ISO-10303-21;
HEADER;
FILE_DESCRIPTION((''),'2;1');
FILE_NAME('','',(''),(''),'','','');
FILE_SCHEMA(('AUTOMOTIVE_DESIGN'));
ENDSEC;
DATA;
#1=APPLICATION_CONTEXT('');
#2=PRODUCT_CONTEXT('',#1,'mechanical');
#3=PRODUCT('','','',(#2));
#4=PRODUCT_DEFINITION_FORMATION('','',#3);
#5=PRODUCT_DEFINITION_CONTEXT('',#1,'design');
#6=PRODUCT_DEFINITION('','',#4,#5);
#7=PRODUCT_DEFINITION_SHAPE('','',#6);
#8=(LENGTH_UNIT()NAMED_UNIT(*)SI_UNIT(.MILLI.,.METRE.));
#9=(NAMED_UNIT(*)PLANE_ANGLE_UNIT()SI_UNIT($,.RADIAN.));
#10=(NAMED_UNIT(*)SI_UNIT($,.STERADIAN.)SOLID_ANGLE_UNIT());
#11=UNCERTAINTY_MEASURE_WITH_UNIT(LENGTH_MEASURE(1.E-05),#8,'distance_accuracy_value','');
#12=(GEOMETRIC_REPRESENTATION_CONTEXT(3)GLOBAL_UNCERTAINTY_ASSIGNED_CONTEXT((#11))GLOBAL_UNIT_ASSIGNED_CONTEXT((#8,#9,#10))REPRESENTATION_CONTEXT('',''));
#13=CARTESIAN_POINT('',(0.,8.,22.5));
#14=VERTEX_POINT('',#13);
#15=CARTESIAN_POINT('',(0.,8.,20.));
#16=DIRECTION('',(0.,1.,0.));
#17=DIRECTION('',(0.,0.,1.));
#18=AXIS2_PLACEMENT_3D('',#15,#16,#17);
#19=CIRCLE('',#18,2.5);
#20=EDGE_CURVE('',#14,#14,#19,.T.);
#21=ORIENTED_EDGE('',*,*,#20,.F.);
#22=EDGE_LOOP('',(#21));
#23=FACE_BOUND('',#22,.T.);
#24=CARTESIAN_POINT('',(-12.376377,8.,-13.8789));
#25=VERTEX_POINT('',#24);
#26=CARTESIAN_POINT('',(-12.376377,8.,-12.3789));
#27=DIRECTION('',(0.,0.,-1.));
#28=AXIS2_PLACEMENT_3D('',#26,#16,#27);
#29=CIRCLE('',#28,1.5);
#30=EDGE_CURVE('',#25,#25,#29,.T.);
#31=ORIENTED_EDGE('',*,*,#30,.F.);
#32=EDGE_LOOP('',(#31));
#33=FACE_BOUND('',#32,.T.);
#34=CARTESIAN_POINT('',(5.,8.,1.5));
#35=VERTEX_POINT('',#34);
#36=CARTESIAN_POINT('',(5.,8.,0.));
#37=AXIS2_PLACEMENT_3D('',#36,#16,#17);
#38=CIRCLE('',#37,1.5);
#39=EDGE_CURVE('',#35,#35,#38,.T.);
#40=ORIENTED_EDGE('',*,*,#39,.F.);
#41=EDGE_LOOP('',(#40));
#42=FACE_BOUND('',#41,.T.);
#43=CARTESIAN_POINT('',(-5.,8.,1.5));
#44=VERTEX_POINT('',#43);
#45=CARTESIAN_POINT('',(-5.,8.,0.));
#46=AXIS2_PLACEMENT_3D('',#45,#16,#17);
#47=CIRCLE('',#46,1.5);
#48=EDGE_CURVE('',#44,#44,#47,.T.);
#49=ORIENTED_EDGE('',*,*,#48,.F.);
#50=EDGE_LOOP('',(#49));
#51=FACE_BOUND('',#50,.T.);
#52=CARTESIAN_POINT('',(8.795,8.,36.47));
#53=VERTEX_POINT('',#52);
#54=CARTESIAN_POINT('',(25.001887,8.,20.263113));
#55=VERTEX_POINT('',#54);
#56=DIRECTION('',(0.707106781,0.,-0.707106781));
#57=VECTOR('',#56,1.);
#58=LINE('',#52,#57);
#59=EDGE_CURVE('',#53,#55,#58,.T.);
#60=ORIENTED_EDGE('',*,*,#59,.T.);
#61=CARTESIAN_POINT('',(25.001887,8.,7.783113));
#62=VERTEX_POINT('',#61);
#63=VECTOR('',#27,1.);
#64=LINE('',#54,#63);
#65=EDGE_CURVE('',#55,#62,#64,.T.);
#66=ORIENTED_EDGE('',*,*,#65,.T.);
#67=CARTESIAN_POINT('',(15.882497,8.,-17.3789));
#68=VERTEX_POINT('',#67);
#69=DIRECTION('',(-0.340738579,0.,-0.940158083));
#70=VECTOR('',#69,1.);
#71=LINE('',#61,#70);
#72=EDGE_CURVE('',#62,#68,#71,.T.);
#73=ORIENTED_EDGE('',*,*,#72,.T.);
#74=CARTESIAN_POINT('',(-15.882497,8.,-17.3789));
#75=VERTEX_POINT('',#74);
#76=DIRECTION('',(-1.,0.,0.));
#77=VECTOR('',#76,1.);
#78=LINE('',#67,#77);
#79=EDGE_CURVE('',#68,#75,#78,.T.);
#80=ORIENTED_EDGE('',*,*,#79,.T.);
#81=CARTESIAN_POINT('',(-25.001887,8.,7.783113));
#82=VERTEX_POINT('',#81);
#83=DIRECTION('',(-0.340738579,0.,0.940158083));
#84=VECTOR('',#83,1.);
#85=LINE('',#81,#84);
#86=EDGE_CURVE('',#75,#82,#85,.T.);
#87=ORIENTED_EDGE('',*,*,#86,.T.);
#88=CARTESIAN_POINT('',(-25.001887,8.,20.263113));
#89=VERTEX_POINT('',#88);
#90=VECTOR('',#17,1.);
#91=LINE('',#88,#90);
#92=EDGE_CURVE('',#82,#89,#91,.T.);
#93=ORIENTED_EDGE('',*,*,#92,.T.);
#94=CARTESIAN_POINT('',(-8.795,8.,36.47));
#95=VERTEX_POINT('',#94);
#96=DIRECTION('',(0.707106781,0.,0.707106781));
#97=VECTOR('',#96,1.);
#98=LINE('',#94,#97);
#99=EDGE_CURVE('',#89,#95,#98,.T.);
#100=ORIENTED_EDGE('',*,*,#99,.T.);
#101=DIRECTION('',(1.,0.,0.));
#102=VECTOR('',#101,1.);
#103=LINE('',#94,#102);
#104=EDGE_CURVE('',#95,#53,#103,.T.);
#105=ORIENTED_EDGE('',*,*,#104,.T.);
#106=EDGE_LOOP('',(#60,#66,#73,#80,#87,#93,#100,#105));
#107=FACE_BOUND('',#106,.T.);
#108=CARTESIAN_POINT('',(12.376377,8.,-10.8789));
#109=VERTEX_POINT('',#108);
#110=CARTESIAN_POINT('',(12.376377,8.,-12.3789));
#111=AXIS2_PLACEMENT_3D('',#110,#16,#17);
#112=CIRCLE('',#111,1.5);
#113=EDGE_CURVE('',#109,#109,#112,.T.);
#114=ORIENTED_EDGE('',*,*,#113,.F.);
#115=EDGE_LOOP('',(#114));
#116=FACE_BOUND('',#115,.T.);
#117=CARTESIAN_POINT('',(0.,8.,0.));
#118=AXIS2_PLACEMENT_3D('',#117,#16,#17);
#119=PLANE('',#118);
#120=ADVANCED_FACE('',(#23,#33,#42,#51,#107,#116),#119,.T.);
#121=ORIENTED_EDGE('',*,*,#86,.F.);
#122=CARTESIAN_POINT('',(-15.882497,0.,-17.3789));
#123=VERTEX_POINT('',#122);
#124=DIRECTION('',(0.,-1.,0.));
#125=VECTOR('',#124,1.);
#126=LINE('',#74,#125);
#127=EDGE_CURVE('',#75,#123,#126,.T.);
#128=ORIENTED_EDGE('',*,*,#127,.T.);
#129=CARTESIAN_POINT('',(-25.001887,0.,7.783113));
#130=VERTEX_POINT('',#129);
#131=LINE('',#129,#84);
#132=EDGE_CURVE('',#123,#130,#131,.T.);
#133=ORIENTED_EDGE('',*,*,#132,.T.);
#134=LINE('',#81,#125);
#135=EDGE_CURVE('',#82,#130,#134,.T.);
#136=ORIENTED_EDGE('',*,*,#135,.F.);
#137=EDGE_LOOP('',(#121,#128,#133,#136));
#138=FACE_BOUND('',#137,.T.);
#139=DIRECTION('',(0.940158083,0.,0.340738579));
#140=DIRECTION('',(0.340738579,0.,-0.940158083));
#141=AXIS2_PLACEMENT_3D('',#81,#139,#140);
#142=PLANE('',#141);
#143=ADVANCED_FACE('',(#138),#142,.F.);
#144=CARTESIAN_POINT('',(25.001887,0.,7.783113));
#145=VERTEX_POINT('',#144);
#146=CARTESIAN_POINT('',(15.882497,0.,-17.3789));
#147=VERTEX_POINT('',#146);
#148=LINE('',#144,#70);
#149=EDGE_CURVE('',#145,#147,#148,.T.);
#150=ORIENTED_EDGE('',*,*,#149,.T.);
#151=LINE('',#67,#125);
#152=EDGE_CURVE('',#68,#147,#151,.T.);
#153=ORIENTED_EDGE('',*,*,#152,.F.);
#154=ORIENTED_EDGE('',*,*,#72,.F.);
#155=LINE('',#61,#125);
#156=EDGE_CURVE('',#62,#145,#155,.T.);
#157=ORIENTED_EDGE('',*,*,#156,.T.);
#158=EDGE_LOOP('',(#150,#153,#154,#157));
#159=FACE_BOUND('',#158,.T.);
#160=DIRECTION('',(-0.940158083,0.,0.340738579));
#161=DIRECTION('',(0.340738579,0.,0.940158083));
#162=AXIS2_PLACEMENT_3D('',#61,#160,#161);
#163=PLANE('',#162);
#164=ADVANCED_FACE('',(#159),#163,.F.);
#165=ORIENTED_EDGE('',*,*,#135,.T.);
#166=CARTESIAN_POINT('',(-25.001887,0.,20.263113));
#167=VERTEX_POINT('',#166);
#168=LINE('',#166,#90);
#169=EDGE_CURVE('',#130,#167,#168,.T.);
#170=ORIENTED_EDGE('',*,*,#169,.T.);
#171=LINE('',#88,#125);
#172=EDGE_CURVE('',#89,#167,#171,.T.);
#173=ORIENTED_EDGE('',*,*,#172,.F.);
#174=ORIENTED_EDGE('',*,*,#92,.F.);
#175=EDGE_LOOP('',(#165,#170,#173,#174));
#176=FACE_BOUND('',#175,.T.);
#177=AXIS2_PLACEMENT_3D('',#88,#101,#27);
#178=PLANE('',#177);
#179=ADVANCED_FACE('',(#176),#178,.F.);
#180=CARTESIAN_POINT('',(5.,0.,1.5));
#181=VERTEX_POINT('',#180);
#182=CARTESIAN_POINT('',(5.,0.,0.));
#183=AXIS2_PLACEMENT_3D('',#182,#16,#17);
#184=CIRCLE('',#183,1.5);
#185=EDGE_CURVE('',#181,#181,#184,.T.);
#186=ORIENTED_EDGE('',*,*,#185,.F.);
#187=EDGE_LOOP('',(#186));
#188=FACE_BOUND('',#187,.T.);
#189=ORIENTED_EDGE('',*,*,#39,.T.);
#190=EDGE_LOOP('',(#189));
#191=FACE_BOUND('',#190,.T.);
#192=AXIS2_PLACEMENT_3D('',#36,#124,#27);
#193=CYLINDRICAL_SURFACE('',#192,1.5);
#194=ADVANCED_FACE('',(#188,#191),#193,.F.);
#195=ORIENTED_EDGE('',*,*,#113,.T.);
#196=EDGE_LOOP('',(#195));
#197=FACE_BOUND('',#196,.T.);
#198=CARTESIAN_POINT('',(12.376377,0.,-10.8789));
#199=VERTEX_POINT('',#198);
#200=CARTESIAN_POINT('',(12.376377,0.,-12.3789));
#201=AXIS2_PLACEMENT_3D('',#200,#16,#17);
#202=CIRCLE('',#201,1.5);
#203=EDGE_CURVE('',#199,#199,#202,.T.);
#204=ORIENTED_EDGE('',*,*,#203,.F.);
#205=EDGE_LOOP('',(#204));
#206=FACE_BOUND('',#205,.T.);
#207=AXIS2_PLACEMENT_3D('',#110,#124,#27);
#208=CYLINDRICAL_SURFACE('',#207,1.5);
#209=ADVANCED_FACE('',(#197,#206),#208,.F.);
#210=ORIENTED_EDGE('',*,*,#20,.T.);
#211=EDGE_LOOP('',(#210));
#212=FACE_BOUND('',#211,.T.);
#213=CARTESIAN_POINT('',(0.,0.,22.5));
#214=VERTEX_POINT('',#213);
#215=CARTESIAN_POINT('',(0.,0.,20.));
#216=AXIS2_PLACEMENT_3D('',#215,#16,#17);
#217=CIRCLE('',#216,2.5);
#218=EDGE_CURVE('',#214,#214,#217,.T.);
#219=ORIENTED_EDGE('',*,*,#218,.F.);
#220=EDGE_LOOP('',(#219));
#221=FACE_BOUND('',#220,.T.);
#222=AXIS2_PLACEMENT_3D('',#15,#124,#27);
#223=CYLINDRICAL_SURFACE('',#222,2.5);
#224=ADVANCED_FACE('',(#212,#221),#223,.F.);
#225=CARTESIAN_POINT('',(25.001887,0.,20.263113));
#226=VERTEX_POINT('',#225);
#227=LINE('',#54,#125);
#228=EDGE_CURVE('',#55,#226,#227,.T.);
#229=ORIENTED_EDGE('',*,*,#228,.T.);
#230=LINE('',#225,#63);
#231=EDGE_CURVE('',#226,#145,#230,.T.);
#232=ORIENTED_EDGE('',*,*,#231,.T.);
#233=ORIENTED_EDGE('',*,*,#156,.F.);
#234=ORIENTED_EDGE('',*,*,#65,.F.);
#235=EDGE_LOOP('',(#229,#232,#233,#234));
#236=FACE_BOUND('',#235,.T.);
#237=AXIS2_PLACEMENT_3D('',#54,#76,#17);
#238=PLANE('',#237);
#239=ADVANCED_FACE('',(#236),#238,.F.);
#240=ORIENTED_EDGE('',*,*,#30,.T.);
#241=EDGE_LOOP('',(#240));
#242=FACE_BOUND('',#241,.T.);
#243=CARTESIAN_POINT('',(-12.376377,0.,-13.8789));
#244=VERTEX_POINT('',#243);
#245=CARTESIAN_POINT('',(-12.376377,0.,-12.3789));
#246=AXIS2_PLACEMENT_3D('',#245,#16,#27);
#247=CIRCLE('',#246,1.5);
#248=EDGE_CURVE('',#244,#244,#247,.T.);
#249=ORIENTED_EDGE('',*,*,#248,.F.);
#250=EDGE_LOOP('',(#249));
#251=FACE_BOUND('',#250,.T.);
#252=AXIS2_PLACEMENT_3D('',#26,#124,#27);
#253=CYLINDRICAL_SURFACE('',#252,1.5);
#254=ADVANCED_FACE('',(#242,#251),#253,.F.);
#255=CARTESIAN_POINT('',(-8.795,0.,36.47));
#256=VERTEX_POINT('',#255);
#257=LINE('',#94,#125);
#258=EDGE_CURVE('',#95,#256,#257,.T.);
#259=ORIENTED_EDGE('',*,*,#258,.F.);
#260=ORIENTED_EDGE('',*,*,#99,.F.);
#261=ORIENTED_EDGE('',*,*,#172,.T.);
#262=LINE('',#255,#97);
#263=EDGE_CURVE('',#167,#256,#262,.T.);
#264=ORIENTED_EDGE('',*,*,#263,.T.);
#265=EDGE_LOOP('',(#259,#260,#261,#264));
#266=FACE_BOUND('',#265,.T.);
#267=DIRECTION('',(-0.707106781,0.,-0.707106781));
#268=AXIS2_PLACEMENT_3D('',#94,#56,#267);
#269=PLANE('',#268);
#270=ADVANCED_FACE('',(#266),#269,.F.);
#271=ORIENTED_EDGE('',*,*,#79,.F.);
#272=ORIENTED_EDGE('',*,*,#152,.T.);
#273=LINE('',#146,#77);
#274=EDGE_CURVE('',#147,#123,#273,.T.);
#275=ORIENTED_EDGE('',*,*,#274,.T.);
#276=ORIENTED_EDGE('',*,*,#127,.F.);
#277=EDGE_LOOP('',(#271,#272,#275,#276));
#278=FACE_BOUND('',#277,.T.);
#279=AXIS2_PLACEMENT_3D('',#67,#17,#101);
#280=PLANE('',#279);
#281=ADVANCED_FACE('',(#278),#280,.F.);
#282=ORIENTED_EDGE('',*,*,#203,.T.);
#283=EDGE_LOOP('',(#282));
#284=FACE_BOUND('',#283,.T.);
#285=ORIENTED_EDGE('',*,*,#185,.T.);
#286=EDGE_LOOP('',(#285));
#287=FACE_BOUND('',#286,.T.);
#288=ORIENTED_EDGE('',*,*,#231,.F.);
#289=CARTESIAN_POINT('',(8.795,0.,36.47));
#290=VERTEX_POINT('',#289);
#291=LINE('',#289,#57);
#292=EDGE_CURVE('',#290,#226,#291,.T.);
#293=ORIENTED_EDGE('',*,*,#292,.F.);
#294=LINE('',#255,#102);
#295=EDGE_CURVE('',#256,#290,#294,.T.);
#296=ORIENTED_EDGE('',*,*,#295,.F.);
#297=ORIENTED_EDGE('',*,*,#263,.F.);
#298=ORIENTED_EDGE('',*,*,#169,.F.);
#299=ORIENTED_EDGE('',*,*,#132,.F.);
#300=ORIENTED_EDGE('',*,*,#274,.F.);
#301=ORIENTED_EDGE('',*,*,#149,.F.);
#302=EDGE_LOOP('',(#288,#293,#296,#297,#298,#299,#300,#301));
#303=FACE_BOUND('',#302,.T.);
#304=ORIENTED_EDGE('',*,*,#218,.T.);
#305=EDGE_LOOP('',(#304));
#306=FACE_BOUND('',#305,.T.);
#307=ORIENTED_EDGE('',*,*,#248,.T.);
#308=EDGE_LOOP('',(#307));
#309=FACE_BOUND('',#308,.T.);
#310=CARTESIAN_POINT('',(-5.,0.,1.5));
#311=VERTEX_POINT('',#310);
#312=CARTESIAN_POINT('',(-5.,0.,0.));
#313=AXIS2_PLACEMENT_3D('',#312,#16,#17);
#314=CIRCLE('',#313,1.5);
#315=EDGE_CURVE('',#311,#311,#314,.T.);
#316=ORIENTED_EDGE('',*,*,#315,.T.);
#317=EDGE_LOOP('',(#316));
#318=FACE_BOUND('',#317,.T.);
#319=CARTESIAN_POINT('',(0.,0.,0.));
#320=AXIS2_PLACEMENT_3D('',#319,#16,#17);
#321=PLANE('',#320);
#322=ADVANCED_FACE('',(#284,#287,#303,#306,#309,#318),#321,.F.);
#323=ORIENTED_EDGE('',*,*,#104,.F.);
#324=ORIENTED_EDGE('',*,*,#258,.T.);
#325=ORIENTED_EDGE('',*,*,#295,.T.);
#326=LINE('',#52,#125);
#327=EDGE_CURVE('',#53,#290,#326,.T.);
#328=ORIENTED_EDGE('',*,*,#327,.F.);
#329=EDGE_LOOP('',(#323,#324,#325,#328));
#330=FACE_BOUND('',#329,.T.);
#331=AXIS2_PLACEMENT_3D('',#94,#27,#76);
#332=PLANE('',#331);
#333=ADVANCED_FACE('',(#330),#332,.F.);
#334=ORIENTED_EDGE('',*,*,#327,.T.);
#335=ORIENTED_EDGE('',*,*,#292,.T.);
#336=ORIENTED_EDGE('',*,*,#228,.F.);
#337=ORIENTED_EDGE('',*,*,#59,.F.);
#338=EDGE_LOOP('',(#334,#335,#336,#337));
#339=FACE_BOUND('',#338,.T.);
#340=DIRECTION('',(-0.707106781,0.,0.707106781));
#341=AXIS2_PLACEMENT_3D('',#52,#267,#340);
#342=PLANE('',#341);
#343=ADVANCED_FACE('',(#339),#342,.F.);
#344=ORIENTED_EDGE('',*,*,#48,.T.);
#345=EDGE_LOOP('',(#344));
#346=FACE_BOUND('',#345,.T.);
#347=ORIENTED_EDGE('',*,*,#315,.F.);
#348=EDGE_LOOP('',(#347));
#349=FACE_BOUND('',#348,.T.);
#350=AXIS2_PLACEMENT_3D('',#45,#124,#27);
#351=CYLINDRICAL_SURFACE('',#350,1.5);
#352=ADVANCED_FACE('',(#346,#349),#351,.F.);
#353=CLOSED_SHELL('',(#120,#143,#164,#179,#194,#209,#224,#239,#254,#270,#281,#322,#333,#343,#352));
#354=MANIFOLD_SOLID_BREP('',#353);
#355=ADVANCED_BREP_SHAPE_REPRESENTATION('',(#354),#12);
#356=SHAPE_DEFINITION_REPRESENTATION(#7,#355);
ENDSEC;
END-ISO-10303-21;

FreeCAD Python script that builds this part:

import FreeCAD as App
import Part
import Sketcher

V = App.Vector

doc = App.newDocument("Part")
body = doc.addObject("PartDesign::Body", "Body")

sketch1 = doc.addObject("Sketcher::SketchObject", "Sketch")
body.addObject(sketch1)
sketch1.AttachmentSupport = (doc.XZ_Plane, [""])
sketch1.MapMode = "FlatFace"
sketch1.addGeometry(Part.LineSegment(V(-8.8, 36.5, 0), V(8.8, 36.5, 0)), False)
sketch1.addGeometry(Part.LineSegment(V(8.8, 36.5, 0), V(25, 20.3, 0)), False)
sketch1.addGeometry(Part.LineSegment(V(25, 20.3, 0), V(25, 7.8, 0)), False)
sketch1.addGeometry(Part.LineSegment(V(25, 7.8, 0), V(15.9, -17.4, 0)), False)
sketch1.addGeometry(Part.LineSegment(V(15.9, -17.4, 0), V(-15.9, -17.4, 0)), False)
sketch1.addGeometry(Part.LineSegment(V(-15.9, -17.4, 0), V(-25, 7.8, 0)), False)
sketch1.addGeometry(Part.LineSegment(V(-25, 7.8, 0), V(-25, 20.3, 0)), False)
sketch1.addGeometry(Part.LineSegment(V(-25, 20.3, 0), V(-8.8, 36.5, 0)), False)
sketch1.addGeometry(Part.Circle(V(0, 20, 0), V(0, 0, 1), 2.5), False)
sketch1.addGeometry(Part.Circle(V(-5, 0, 0), V(0, 0, 1), 1.5), False)
sketch1.addGeometry(Part.Circle(V(-12.4, -12.4, 0), V(0, 0, 1), 1.5), False)
sketch1.addGeometry(Part.Circle(V(5, 0, 0), V(0, 0, 1), 1.5), False)
sketch1.addGeometry(Part.Circle(V(12.4, -12.4, 0), V(0, 0, 1), 1.5), False)
sketch1.addConstraint(Sketcher.Constraint("Coincident", 0, 2, 1, 1))
sketch1.addConstraint(Sketcher.Constraint("Coincident", 1, 2, 2, 1))
sketch1.addConstraint(Sketcher.Constraint("Coincident", 2, 2, 3, 1))
sketch1.addConstraint(Sketcher.Constraint("Coincident", 3, 2, 4, 1))
sketch1.addConstraint(Sketcher.Constraint("Coincident", 4, 2, 5, 1))
sketch1.addConstraint(Sketcher.Constraint("Coincident", 5, 2, 6, 1))
sketch1.addConstraint(Sketcher.Constraint("Coincident", 6, 2, 7, 1))
sketch1.addConstraint(Sketcher.Constraint("Coincident", 7, 2, 0, 1))
sketch1.addConstraint(Sketcher.Constraint("Horizontal", 0))
sketch1.addConstraint(Sketcher.Constraint("Vertical", 2))
sketch1.addConstraint(Sketcher.Constraint("Horizontal", 4))
sketch1.addConstraint(Sketcher.Constraint("Vertical", 6))
sketch1.addConstraint(Sketcher.Constraint("Equal", 9, 10))
sketch1.addConstraint(Sketcher.Constraint("Equal", 10, 11))
sketch1.addConstraint(Sketcher.Constraint("Equal", 11, 12))
sketch1.addConstraint(Sketcher.Constraint("Symmetric", 9, 3, 11, 3, -1, 1))
sketch1.addConstraint(Sketcher.Constraint("Symmetric", 10, 3, 12, 3, -2))
sketch1.addConstraint(Sketcher.Constraint("Symmetric", 2, 2, 5, 2, -2))
sketch1.addConstraint(Sketcher.Constraint("PointOnObject", 8, 3, -2))
sketch1.addConstraint(Sketcher.Constraint("PointOnObject", 9, 3, -1))
sketch1.addConstraint(Sketcher.Constraint("Perpendicular", 1, 7))
sketch1.addConstraint(Sketcher.Constraint("Horizontal", 1, 2, 6, 2))
sketch1.addConstraint(Sketcher.Constraint("Equal", 3, 5))
sketch1.addConstraint(Sketcher.Constraint("Equal", 1, 7))
sketch1.addConstraint(Sketcher.Constraint("Diameter", 8, 5.0))
sketch1.addConstraint(Sketcher.Constraint("Diameter", 9, 3.0))
sketch1.addConstraint(Sketcher.Constraint("DistanceY", -1, 1, 8, 3, 20.0))
sketch1.addConstraint(Sketcher.Constraint("DistanceX", 9, 3, -1, 1, 5.0))
sketch1.addConstraint(Sketcher.Constraint("DistanceY", 3, 2, 12, 3, 5.0))
sketch1.addConstraint(Sketcher.Constraint("DistanceX", 0, 1, 0, 2, 17.59))
sketch1.addConstraint(Sketcher.Constraint("DistanceY", 2, 2, 2, 1, 12.48))
sketch1.addConstraint(Sketcher.Constraint("Distance", 1, 22.92))
sketch1.addConstraint(Sketcher.Constraint("DistanceY", -1, 1, 0, 2, 36.47))
sketch1.addConstraint(Sketcher.Constraint("DistanceY", 10, 3, -1, 1, 12.3789))
sketch1.addConstraint(Sketcher.Constraint("DistanceX", 4, 2, 4, 1, 31.764995))
sketch1.addConstraint(Sketcher.Constraint("DistanceX", 12, 3, 1, 2, 12.62551))
pad1 = doc.addObject("PartDesign::Pad", "Pad")
body.addObject(pad1)
pad1.Profile = sketch1
pad1.Length = 8
pad1.Reversed = True

doc.recompute()
